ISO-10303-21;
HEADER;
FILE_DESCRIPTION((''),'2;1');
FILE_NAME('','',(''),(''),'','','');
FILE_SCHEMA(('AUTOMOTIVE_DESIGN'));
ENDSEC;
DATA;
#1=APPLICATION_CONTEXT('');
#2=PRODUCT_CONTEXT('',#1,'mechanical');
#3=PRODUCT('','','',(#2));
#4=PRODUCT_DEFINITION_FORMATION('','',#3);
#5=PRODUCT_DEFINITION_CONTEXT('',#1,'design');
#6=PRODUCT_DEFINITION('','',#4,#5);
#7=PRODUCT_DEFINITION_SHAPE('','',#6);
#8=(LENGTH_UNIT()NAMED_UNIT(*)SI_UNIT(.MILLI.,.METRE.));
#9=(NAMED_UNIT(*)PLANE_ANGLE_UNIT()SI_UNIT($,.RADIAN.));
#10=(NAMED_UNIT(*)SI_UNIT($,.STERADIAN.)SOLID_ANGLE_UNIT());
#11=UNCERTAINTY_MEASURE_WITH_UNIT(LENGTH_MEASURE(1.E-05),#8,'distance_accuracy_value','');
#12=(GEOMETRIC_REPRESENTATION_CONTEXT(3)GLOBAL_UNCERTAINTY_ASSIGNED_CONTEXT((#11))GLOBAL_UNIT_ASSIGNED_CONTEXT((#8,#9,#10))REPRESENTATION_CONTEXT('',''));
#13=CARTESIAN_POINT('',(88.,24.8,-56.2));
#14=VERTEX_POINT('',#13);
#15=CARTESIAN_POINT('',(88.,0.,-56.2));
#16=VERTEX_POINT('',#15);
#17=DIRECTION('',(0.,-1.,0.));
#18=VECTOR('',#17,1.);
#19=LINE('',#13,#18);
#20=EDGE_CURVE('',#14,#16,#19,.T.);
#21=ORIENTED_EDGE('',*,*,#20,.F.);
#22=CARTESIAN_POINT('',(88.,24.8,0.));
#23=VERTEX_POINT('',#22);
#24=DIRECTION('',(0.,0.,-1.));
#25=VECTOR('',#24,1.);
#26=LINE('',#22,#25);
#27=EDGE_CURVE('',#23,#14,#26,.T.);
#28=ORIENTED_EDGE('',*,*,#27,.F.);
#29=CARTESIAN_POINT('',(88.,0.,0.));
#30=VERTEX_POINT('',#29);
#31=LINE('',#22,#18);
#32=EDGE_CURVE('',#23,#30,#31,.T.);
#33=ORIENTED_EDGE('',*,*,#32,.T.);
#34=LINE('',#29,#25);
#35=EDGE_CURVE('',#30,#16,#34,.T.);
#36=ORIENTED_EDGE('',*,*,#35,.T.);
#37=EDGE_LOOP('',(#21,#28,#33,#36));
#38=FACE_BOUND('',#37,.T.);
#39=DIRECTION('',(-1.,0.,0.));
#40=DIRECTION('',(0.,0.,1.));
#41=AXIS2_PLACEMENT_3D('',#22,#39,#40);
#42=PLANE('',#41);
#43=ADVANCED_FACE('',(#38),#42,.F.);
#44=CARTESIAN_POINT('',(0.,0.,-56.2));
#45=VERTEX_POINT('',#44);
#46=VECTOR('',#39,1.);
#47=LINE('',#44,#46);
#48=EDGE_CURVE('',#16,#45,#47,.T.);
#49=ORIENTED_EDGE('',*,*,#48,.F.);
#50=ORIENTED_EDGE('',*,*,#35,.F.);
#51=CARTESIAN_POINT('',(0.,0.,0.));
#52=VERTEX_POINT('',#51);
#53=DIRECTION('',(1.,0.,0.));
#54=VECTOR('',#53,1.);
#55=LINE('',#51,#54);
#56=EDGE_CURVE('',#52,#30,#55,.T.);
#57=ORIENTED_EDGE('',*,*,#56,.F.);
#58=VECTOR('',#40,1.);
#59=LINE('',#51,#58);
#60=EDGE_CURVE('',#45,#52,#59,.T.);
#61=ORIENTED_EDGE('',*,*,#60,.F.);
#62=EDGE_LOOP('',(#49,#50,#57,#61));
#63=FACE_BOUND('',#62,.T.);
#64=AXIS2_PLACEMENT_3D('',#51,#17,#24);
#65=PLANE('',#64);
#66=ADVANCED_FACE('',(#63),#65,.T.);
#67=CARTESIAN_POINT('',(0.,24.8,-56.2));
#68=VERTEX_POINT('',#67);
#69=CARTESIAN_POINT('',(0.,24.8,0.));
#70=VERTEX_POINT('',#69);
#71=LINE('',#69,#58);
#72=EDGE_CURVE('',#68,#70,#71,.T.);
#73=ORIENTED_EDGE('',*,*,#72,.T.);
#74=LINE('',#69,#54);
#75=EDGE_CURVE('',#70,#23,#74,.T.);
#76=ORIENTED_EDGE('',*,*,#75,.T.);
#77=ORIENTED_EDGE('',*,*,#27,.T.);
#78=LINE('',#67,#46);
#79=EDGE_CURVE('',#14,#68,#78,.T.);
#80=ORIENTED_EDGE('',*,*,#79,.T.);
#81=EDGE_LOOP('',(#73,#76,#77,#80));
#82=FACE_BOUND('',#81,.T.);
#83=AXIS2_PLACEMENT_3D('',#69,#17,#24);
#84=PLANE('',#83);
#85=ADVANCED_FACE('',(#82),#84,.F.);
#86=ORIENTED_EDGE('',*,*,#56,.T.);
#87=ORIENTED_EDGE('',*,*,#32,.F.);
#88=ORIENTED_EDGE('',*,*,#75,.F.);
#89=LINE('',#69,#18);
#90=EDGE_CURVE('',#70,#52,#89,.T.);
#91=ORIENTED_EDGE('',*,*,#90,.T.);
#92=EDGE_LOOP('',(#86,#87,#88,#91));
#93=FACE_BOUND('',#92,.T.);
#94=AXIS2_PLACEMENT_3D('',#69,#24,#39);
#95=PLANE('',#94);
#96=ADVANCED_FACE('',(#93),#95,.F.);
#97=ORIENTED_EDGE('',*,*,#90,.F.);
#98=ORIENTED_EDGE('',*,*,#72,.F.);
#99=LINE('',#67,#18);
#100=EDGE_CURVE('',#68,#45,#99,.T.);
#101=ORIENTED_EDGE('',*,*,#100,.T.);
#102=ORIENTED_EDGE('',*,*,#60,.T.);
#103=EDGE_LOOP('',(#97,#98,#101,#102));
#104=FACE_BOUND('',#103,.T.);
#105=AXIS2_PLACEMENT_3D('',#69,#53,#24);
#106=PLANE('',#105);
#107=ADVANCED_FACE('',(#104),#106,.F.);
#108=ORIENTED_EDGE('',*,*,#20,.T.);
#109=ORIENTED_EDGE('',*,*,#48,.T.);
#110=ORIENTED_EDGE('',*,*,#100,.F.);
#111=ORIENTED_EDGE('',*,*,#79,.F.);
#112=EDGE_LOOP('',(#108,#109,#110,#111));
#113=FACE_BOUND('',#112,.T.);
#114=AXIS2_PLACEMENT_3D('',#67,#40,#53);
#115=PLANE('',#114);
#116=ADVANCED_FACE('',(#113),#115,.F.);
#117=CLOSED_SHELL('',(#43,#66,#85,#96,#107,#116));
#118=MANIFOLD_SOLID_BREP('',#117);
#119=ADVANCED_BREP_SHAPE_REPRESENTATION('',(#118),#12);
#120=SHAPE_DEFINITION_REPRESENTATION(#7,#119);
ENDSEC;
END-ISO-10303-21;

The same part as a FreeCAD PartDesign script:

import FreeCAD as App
import Part
import Sketcher

V = App.Vector

doc = App.newDocument("Part")
body = doc.addObject("PartDesign::Body", "Body")

# Sketch on XZ plane
sketch1 = doc.addObject("Sketcher::SketchObject", "Sketch")
body.addObject(sketch1)
sketch1.AttachmentSupport = (doc.XZ_Plane, [""])
sketch1.MapMode = "FlatFace"
sketch1.addGeometry([
    Part.LineSegment(V(0, -56.2, 0), V(0, 0, 0)),
    Part.LineSegment(V(0, 0, 0), V(88, 0, 0)),
    Part.LineSegment(V(88, 0, 0), V(88, -56.2, 0)),
    Part.LineSegment(V(88, -56.2, 0), V(0, -56.2, 0)),
], False)
sketch1.addConstraint([
    Sketcher.Constraint("Coincident", 0, 2, 1, 1),
    Sketcher.Constraint("Coincident", 1, 2, 2, 1),
    Sketcher.Constraint("Coincident", 2, 2, 3, 1),
    Sketcher.Constraint("Coincident", 3, 2, 0, 1),
    Sketcher.Constraint("Vertical", 0),
    Sketcher.Constraint("Horizontal", 1),
    Sketcher.Constraint("Vertical", 2),
    Sketcher.Constraint("Horizontal", 3),
    Sketcher.Constraint("Coincident", 0, 2, -1, 1),
    Sketcher.Constraint("DistanceX", 1, 1, 1, 2, 88.0),
    Sketcher.Constraint("DistanceY", 0, 1, 0, 2, 56.2),
])
pad1 = doc.addObject("PartDesign::Pad", "Pad")
body.addObject(pad1)
pad1.Profile = sketch1
pad1.Length = 24.8
pad1.Reversed = True

doc.recompute()
